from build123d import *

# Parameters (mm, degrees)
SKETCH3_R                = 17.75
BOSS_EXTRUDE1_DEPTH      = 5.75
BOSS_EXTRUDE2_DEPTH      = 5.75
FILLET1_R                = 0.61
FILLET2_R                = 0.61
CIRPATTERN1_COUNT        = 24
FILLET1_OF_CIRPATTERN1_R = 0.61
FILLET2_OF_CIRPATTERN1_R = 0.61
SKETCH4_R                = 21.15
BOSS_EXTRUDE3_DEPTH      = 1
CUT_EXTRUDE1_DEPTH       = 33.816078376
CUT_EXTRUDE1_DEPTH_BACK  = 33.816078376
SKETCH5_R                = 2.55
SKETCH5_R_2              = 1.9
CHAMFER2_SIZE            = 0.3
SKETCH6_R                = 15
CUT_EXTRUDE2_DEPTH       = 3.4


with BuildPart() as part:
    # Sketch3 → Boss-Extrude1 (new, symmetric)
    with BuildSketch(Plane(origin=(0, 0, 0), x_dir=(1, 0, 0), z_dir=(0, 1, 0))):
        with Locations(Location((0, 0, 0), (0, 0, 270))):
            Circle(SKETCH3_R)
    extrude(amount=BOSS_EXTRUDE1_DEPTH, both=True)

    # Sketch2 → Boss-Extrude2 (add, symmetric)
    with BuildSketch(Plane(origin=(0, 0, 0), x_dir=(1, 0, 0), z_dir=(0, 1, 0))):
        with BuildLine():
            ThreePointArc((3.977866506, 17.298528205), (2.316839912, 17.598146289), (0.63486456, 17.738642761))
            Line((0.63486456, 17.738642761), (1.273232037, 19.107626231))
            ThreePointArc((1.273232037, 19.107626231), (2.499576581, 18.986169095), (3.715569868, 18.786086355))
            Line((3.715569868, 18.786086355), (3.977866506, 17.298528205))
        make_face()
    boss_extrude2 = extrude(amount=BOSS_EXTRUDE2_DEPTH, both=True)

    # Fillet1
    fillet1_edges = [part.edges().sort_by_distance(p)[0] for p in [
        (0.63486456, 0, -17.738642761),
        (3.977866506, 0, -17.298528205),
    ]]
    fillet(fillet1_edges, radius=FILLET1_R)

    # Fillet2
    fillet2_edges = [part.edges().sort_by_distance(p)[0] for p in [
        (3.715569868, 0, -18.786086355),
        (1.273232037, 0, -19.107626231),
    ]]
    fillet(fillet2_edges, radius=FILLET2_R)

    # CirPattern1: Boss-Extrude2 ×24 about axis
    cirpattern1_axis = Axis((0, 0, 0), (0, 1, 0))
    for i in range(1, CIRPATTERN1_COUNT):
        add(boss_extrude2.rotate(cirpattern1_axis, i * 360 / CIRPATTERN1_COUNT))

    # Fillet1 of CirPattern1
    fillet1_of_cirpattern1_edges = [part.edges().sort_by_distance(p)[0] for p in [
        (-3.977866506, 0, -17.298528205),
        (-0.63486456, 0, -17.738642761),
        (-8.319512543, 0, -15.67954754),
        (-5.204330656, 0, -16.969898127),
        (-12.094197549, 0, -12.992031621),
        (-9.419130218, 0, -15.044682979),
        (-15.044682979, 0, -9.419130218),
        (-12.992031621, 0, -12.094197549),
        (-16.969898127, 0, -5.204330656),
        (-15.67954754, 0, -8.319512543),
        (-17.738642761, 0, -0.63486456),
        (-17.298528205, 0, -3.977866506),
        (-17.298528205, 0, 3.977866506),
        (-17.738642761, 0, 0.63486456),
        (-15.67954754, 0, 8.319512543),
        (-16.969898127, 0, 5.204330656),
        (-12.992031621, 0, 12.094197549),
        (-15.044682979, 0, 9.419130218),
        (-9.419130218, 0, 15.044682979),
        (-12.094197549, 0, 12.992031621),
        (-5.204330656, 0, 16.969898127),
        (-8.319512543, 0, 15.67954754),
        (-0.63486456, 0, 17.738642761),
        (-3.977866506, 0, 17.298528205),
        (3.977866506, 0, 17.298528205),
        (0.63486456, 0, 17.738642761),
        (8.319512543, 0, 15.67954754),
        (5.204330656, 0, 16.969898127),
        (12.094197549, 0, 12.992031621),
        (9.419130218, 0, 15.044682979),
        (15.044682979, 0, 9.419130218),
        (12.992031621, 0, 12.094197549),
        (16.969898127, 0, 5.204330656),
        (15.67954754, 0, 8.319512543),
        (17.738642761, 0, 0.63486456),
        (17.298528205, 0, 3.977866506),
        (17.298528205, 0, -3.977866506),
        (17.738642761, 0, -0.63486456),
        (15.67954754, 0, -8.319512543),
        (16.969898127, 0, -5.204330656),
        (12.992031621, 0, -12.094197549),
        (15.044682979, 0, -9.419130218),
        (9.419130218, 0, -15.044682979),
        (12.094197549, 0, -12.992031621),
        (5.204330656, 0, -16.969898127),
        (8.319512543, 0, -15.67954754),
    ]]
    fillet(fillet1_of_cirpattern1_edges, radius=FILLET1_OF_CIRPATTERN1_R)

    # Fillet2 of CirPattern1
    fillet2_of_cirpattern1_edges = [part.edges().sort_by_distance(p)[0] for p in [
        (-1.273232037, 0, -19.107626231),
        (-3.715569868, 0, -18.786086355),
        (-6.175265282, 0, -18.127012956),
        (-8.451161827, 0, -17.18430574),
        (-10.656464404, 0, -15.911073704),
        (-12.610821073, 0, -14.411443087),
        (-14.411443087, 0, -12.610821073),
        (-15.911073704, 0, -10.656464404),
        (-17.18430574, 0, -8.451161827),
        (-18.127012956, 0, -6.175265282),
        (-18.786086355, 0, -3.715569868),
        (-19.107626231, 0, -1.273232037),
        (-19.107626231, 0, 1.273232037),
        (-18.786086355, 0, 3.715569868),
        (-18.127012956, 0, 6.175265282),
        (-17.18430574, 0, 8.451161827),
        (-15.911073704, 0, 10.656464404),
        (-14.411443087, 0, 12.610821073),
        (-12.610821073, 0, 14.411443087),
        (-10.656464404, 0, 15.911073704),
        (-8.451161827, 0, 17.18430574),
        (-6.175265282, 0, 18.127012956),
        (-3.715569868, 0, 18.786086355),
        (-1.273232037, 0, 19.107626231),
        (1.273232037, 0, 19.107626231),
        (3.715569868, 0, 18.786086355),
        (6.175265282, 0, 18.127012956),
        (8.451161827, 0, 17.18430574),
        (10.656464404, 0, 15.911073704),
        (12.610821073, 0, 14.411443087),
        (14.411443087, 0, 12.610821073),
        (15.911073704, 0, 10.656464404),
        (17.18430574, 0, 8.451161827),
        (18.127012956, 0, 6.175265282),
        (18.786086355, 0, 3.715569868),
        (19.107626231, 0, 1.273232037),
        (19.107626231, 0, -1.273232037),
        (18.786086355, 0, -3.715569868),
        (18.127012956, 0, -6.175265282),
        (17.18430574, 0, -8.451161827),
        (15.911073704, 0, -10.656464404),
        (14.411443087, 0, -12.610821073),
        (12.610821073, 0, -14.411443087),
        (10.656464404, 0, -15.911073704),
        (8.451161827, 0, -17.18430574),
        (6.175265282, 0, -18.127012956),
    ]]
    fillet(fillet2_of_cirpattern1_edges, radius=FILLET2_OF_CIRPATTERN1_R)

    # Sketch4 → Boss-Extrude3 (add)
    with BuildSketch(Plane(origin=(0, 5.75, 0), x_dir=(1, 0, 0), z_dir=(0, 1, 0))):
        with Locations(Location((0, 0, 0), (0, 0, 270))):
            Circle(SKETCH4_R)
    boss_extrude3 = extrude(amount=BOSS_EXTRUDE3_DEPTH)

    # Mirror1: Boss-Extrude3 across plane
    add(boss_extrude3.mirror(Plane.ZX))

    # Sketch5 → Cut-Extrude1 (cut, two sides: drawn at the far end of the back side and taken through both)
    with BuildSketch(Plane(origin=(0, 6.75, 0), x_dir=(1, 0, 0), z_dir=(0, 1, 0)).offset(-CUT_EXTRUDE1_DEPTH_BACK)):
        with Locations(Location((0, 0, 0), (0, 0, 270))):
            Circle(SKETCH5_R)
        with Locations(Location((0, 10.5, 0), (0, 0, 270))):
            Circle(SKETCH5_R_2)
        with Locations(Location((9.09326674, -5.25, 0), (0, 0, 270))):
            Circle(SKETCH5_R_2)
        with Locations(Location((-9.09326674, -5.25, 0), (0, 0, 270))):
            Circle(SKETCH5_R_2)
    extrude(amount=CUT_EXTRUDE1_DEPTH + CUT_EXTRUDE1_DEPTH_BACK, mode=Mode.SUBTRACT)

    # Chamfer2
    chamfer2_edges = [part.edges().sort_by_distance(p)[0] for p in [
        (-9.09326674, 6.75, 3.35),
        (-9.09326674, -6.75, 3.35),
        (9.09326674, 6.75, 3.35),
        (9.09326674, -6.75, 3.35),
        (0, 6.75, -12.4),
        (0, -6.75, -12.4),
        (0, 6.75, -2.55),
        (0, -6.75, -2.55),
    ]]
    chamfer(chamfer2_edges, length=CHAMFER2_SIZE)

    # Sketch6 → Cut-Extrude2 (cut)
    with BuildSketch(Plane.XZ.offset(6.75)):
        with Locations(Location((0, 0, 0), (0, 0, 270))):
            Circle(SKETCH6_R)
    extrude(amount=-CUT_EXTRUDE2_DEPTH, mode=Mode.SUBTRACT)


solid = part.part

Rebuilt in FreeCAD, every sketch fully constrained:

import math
import FreeCAD as App
import Part
import Sketcher
Q = App.Units.Quantity


def edges_at(feature, points):
    """Names of the edges that pass closest to the given points."""
    edges = feature.Shape.Edges
    near = lambda p: min(range(len(edges)), key=lambda i: edges[i].distToShape(Part.Vertex(*p))[0])
    return sorted({f"Edge{near(p) + 1}" for p in points})

doc = App.newDocument("Part")
body = doc.addObject("PartDesign::Body", "Body")

sketch1 = body.newObject("Sketcher::SketchObject", "Sketch")
sketch1.AttachmentSupport = (doc.getObject("XZ_Plane"), [""])
sketch1.MapMode = "FlatFace"
sketch1.addGeometry(Part.Circle(App.Vector(0, 0, 0), App.Vector(0, 0, 1), 17.75), False)
sketch1.addConstraint([
    Sketcher.Constraint("Coincident", 0, 3, -1, 1),
    Sketcher.Constraint("Diameter", 0, Q("35.5 mm")),
])
pad1 = body.newObject("PartDesign::Pad", "Pad")
pad1.Profile = sketch1
pad1.Length = 11.5
pad1.Midplane = True

sketch2 = body.newObject("Sketcher::SketchObject", "Sketch001")
sketch2.AttachmentSupport = (doc.getObject("XZ_Plane"), [""])
sketch2.MapMode = "FlatFace"
sketch2.addGeometry([
    Part.ArcOfCircle(Part.Circle(App.Vector(0, 0, 0), App.Vector(0, 0, 1), 17.75), math.radians(-87.950264), math.radians(-77.049736)),
    Part.LineSegment(App.Vector(3.977867, -17.298528, 0), App.Vector(3.71557, -18.786086, 0)),
    Part.ArcOfCircle(Part.Circle(App.Vector(0, 0, 0), App.Vector(0, 0, 1), 19.15), math.radians(-86.187745), math.radians(-78.812255)),
    Part.LineSegment(App.Vector(1.273232, -19.107626, 0), App.Vector(0.634865, -17.738643, 0)),
], False)
sketch2.addConstraint([
    Sketcher.Constraint("Coincident", 0, 2, 1, 1),
    Sketcher.Constraint("Coincident", 1, 2, 2, 2),
    Sketcher.Constraint("Coincident", 2, 1, 3, 1),
    Sketcher.Constraint("Coincident", 3, 2, 0, 1),
    Sketcher.Constraint("Coincident", 0, 3, -1, 1),
    Sketcher.Constraint("Coincident", 2, 3, -1, 1),
    Sketcher.Constraint("Equal", 1, 3),
    Sketcher.Constraint("Angle", 1, Q("-100 deg")),
    Sketcher.Constraint("Angle", 3, Q("115 deg")),
    Sketcher.Constraint("Radius", 0, Q("17.75 mm")),
    Sketcher.Constraint("Radius", 2, Q("19.15 mm")),
    Sketcher.Constraint("DistanceX", 3, 2, 0, 2, Q("3.343002 mm")),
])
pad2 = body.newObject("PartDesign::Pad", "Pad001")
pad2.Profile = sketch2
pad2.Length = 11.5
pad2.Midplane = True
doc.recompute()

fillet = body.newObject("PartDesign::Fillet", "Fillet")
fillet.Base = (pad2, edges_at(pad2, [(0.635, 0, -17.739), (3.978, 0, -17.299)]))
fillet.Radius = 0.61
doc.recompute()

fillet2 = body.newObject("PartDesign::Fillet", "Fillet001")
fillet2.Base = (fillet, edges_at(fillet, [(3.716, 0, -18.786), (1.273, 0, -19.108)]))
fillet2.Radius = 0.61
doc.recompute()

polarpattern = body.newObject("PartDesign::PolarPattern", "PolarPattern")
polarpattern.Originals = [pad2]
polarpattern.Axis = (doc.getObject("Y_Axis"), [""])
polarpattern.Angle = 360
polarpattern.Occurrences = 24
body.Tip = polarpattern
doc.recompute()

fillet3 = body.newObject("PartDesign::Fillet", "Fillet002")
fillet3.Base = (polarpattern, edges_at(polarpattern, [
    (-3.978, 0, -17.299),
    (-0.635, 0, -17.739),
    (-8.32, 0, -15.68),
    (-5.204, 0, -16.97),
    (-12.094, 0, -12.992),
    (-9.419, 0, -15.045),
    (-15.045, 0, -9.419),
    (-12.992, 0, -12.094),
    (-16.97, 0, -5.204),
    (-15.68, 0, -8.32),
    (-17.739, 0, -0.635),
    (-17.299, 0, -3.978),
    (-17.299, 0, 3.978),
    (-17.739, 0, 0.635),
    (-15.68, 0, 8.32),
    (-16.97, 0, 5.204),
    (-12.992, 0, 12.094),
    (-15.045, 0, 9.419),
    (-9.419, 0, 15.045),
    (-12.094, 0, 12.992),
    (-5.204, 0, 16.97),
    (-8.32, 0, 15.68),
    (-0.635, 0, 17.739),
    (-3.978, 0, 17.299),
    (3.978, 0, 17.299),
    (0.635, 0, 17.739),
    (8.32, 0, 15.68),
    (5.204, 0, 16.97),
    (12.094, 0, 12.992),
    (9.419, 0, 15.045),
    (15.045, 0, 9.419),
    (12.992, 0, 12.094),
    (16.97, 0, 5.204),
    (15.68, 0, 8.32),
    (17.739, 0, 0.635),
    (17.299, 0, 3.978),
    (17.299, 0, -3.978),
    (17.739, 0, -0.635),
    (15.68, 0, -8.32),
    (16.97, 0, -5.204),
    (12.992, 0, -12.094),
    (15.045, 0, -9.419),
    (9.419, 0, -15.045),
    (12.094, 0, -12.992),
    (5.204, 0, -16.97),
    (8.32, 0, -15.68),
]))
fillet3.Radius = 0.61
doc.recompute()

fillet4 = body.newObject("PartDesign::Fillet", "Fillet003")
fillet4.Base = (fillet3, edges_at(fillet3, [
    (-1.273, 0, -19.108),
    (-3.716, 0, -18.786),
    (-6.175, 0, -18.127),
    (-8.451, 0, -17.184),
    (-10.656, 0, -15.911),
    (-12.611, 0, -14.411),
    (-14.411, 0, -12.611),
    (-15.911, 0, -10.656),
    (-17.184, 0, -8.451),
    (-18.127, 0, -6.175),
    (-18.786, 0, -3.716),
    (-19.108, 0, -1.273),
    (-19.108, 0, 1.273),
    (-18.786, 0, 3.716),
    (-18.127, 0, 6.175),
    (-17.184, 0, 8.451),
    (-15.911, 0, 10.656),
    (-14.411, 0, 12.611),
    (-12.611, 0, 14.411),
    (-10.656, 0, 15.911),
    (-8.451, 0, 17.184),
    (-6.175, 0, 18.127),
    (-3.716, 0, 18.786),
    (-1.273, 0, 19.108),
    (1.273, 0, 19.108),
    (3.716, 0, 18.786),
    (6.175, 0, 18.127),
    (8.451, 0, 17.184),
    (10.656, 0, 15.911),
    (12.611, 0, 14.411),
    (14.411, 0, 12.611),
    (15.911, 0, 10.656),
    (17.184, 0, 8.451),
    (18.127, 0, 6.175),
    (18.786, 0, 3.716),
    (19.108, 0, 1.273),
    (19.108, 0, -1.273),
    (18.786, 0, -3.716),
    (18.127, 0, -6.175),
    (17.184, 0, -8.451),
    (15.911, 0, -10.656),
    (14.411, 0, -12.611),
    (12.611, 0, -14.411),
    (10.656, 0, -15.911),
    (8.451, 0, -17.184),
    (6.175, 0, -18.127),
]))
fillet4.Radius = 0.61

sketch3 = body.newObject("Sketcher::SketchObject", "Sketch002")
sketch3.AttachmentSupport = (doc.getObject("XZ_Plane"), [""])
sketch3.MapMode = "FlatFace"
sketch3.AttachmentOffset = App.Placement(App.Vector(0, 0, -5.75), App.Rotation())
sketch3.addGeometry(Part.Circle(App.Vector(0, 0, 0), App.Vector(0, 0, 1), 21.15), False)
sketch3.addConstraint([
    Sketcher.Constraint("Coincident", 0, 3, -1, 1),
    Sketcher.Constraint("Diameter", 0, Q("42.3 mm")),
])
pad3 = body.newObject("PartDesign::Pad", "Pad002")
pad3.Profile = sketch3
pad3.Length = 1
pad3.Reversed = True
doc.recompute()

mirrored = body.newObject("PartDesign::Mirrored", "Mirrored")
mirrored.Originals = [pad3]
mirrored.MirrorPlane = (doc.getObject("XZ_Plane"), [""])
body.Tip = mirrored

sketch4 = body.newObject("Sketcher::SketchObject", "Sketch003")
sketch4.AttachmentSupport = (doc.getObject("XZ_Plane"), [""])
sketch4.MapMode = "FlatFace"
sketch4.AttachmentOffset = App.Placement(App.Vector(0, 0, -6.75), App.Rotation())
sketch4.addGeometry([
    Part.Circle(App.Vector(0, 0, 0), App.Vector(0, 0, 1), 2.55),
    Part.Circle(App.Vector(0, -10.5, 0), App.Vector(0, 0, 1), 1.9),
    Part.Circle(App.Vector(9.093267, 5.25, 0), App.Vector(0, 0, 1), 1.9),
    Part.Circle(App.Vector(-9.093267, 5.25, 0), App.Vector(0, 0, 1), 1.9),
], False)
sketch4.addConstraint([
    Sketcher.Constraint("Coincident", 0, 3, -1, 1),
    Sketcher.Constraint("Equal", 1, 2),
    Sketcher.Constraint("Equal", 2, 3),
    Sketcher.Constraint("Symmetric", 2, 3, 3, 3, -2),
    Sketcher.Constraint("PointOnObject", 1, 3, -2),
    Sketcher.Constraint("Diameter", 0, Q("5.1 mm")),
    Sketcher.Constraint("Diameter", 1, Q("3.8 mm")),
    Sketcher.Constraint("DistanceY", 1, 3, -1, 1, Q("10.5 mm")),
    Sketcher.Constraint("DistanceY", -1, 1, 2, 3, Q("5.25 mm")),
    Sketcher.Constraint("DistanceX", -1, 1, 2, 3, Q("9.093267 mm")),
])
pocket1 = body.newObject("PartDesign::Pocket", "Pocket")
pocket1.Profile = sketch4
pocket1.Type = "ThroughAll"
pocket1.Midplane = True
doc.recompute()

chamfer = body.newObject("PartDesign::Chamfer", "Chamfer")
chamfer.Base = (pocket1, edges_at(pocket1, [
    (-9.093, 6.75, 3.35),
    (-9.093, -6.75, 3.35),
    (9.093, 6.75, 3.35),
    (9.093, -6.75, 3.35),
    (0, 6.75, -12.4),
    (0, -6.75, -12.4),
    (0, 6.75, -2.55),
    (0, -6.75, -2.55),
]))
chamfer.Size = 0.3

sketch5 = body.newObject("Sketcher::SketchObject", "Sketch004")
sketch5.AttachmentSupport = (doc.getObject("XZ_Plane"), [""])
sketch5.MapMode = "FlatFace"
sketch5.AttachmentOffset = App.Placement(App.Vector(0, 0, 6.75), App.Rotation())
sketch5.addGeometry(Part.Circle(App.Vector(0, 0, 0), App.Vector(0, 0, 1), 15), False)
sketch5.addConstraint([
    Sketcher.Constraint("Coincident", 0, 3, -1, 1),
    Sketcher.Constraint("Diameter", 0, Q("30 mm")),
])
pocket2 = body.newObject("PartDesign::Pocket", "Pocket001")
pocket2.Profile = sketch5
pocket2.Length = 3.4

doc.recompute()
